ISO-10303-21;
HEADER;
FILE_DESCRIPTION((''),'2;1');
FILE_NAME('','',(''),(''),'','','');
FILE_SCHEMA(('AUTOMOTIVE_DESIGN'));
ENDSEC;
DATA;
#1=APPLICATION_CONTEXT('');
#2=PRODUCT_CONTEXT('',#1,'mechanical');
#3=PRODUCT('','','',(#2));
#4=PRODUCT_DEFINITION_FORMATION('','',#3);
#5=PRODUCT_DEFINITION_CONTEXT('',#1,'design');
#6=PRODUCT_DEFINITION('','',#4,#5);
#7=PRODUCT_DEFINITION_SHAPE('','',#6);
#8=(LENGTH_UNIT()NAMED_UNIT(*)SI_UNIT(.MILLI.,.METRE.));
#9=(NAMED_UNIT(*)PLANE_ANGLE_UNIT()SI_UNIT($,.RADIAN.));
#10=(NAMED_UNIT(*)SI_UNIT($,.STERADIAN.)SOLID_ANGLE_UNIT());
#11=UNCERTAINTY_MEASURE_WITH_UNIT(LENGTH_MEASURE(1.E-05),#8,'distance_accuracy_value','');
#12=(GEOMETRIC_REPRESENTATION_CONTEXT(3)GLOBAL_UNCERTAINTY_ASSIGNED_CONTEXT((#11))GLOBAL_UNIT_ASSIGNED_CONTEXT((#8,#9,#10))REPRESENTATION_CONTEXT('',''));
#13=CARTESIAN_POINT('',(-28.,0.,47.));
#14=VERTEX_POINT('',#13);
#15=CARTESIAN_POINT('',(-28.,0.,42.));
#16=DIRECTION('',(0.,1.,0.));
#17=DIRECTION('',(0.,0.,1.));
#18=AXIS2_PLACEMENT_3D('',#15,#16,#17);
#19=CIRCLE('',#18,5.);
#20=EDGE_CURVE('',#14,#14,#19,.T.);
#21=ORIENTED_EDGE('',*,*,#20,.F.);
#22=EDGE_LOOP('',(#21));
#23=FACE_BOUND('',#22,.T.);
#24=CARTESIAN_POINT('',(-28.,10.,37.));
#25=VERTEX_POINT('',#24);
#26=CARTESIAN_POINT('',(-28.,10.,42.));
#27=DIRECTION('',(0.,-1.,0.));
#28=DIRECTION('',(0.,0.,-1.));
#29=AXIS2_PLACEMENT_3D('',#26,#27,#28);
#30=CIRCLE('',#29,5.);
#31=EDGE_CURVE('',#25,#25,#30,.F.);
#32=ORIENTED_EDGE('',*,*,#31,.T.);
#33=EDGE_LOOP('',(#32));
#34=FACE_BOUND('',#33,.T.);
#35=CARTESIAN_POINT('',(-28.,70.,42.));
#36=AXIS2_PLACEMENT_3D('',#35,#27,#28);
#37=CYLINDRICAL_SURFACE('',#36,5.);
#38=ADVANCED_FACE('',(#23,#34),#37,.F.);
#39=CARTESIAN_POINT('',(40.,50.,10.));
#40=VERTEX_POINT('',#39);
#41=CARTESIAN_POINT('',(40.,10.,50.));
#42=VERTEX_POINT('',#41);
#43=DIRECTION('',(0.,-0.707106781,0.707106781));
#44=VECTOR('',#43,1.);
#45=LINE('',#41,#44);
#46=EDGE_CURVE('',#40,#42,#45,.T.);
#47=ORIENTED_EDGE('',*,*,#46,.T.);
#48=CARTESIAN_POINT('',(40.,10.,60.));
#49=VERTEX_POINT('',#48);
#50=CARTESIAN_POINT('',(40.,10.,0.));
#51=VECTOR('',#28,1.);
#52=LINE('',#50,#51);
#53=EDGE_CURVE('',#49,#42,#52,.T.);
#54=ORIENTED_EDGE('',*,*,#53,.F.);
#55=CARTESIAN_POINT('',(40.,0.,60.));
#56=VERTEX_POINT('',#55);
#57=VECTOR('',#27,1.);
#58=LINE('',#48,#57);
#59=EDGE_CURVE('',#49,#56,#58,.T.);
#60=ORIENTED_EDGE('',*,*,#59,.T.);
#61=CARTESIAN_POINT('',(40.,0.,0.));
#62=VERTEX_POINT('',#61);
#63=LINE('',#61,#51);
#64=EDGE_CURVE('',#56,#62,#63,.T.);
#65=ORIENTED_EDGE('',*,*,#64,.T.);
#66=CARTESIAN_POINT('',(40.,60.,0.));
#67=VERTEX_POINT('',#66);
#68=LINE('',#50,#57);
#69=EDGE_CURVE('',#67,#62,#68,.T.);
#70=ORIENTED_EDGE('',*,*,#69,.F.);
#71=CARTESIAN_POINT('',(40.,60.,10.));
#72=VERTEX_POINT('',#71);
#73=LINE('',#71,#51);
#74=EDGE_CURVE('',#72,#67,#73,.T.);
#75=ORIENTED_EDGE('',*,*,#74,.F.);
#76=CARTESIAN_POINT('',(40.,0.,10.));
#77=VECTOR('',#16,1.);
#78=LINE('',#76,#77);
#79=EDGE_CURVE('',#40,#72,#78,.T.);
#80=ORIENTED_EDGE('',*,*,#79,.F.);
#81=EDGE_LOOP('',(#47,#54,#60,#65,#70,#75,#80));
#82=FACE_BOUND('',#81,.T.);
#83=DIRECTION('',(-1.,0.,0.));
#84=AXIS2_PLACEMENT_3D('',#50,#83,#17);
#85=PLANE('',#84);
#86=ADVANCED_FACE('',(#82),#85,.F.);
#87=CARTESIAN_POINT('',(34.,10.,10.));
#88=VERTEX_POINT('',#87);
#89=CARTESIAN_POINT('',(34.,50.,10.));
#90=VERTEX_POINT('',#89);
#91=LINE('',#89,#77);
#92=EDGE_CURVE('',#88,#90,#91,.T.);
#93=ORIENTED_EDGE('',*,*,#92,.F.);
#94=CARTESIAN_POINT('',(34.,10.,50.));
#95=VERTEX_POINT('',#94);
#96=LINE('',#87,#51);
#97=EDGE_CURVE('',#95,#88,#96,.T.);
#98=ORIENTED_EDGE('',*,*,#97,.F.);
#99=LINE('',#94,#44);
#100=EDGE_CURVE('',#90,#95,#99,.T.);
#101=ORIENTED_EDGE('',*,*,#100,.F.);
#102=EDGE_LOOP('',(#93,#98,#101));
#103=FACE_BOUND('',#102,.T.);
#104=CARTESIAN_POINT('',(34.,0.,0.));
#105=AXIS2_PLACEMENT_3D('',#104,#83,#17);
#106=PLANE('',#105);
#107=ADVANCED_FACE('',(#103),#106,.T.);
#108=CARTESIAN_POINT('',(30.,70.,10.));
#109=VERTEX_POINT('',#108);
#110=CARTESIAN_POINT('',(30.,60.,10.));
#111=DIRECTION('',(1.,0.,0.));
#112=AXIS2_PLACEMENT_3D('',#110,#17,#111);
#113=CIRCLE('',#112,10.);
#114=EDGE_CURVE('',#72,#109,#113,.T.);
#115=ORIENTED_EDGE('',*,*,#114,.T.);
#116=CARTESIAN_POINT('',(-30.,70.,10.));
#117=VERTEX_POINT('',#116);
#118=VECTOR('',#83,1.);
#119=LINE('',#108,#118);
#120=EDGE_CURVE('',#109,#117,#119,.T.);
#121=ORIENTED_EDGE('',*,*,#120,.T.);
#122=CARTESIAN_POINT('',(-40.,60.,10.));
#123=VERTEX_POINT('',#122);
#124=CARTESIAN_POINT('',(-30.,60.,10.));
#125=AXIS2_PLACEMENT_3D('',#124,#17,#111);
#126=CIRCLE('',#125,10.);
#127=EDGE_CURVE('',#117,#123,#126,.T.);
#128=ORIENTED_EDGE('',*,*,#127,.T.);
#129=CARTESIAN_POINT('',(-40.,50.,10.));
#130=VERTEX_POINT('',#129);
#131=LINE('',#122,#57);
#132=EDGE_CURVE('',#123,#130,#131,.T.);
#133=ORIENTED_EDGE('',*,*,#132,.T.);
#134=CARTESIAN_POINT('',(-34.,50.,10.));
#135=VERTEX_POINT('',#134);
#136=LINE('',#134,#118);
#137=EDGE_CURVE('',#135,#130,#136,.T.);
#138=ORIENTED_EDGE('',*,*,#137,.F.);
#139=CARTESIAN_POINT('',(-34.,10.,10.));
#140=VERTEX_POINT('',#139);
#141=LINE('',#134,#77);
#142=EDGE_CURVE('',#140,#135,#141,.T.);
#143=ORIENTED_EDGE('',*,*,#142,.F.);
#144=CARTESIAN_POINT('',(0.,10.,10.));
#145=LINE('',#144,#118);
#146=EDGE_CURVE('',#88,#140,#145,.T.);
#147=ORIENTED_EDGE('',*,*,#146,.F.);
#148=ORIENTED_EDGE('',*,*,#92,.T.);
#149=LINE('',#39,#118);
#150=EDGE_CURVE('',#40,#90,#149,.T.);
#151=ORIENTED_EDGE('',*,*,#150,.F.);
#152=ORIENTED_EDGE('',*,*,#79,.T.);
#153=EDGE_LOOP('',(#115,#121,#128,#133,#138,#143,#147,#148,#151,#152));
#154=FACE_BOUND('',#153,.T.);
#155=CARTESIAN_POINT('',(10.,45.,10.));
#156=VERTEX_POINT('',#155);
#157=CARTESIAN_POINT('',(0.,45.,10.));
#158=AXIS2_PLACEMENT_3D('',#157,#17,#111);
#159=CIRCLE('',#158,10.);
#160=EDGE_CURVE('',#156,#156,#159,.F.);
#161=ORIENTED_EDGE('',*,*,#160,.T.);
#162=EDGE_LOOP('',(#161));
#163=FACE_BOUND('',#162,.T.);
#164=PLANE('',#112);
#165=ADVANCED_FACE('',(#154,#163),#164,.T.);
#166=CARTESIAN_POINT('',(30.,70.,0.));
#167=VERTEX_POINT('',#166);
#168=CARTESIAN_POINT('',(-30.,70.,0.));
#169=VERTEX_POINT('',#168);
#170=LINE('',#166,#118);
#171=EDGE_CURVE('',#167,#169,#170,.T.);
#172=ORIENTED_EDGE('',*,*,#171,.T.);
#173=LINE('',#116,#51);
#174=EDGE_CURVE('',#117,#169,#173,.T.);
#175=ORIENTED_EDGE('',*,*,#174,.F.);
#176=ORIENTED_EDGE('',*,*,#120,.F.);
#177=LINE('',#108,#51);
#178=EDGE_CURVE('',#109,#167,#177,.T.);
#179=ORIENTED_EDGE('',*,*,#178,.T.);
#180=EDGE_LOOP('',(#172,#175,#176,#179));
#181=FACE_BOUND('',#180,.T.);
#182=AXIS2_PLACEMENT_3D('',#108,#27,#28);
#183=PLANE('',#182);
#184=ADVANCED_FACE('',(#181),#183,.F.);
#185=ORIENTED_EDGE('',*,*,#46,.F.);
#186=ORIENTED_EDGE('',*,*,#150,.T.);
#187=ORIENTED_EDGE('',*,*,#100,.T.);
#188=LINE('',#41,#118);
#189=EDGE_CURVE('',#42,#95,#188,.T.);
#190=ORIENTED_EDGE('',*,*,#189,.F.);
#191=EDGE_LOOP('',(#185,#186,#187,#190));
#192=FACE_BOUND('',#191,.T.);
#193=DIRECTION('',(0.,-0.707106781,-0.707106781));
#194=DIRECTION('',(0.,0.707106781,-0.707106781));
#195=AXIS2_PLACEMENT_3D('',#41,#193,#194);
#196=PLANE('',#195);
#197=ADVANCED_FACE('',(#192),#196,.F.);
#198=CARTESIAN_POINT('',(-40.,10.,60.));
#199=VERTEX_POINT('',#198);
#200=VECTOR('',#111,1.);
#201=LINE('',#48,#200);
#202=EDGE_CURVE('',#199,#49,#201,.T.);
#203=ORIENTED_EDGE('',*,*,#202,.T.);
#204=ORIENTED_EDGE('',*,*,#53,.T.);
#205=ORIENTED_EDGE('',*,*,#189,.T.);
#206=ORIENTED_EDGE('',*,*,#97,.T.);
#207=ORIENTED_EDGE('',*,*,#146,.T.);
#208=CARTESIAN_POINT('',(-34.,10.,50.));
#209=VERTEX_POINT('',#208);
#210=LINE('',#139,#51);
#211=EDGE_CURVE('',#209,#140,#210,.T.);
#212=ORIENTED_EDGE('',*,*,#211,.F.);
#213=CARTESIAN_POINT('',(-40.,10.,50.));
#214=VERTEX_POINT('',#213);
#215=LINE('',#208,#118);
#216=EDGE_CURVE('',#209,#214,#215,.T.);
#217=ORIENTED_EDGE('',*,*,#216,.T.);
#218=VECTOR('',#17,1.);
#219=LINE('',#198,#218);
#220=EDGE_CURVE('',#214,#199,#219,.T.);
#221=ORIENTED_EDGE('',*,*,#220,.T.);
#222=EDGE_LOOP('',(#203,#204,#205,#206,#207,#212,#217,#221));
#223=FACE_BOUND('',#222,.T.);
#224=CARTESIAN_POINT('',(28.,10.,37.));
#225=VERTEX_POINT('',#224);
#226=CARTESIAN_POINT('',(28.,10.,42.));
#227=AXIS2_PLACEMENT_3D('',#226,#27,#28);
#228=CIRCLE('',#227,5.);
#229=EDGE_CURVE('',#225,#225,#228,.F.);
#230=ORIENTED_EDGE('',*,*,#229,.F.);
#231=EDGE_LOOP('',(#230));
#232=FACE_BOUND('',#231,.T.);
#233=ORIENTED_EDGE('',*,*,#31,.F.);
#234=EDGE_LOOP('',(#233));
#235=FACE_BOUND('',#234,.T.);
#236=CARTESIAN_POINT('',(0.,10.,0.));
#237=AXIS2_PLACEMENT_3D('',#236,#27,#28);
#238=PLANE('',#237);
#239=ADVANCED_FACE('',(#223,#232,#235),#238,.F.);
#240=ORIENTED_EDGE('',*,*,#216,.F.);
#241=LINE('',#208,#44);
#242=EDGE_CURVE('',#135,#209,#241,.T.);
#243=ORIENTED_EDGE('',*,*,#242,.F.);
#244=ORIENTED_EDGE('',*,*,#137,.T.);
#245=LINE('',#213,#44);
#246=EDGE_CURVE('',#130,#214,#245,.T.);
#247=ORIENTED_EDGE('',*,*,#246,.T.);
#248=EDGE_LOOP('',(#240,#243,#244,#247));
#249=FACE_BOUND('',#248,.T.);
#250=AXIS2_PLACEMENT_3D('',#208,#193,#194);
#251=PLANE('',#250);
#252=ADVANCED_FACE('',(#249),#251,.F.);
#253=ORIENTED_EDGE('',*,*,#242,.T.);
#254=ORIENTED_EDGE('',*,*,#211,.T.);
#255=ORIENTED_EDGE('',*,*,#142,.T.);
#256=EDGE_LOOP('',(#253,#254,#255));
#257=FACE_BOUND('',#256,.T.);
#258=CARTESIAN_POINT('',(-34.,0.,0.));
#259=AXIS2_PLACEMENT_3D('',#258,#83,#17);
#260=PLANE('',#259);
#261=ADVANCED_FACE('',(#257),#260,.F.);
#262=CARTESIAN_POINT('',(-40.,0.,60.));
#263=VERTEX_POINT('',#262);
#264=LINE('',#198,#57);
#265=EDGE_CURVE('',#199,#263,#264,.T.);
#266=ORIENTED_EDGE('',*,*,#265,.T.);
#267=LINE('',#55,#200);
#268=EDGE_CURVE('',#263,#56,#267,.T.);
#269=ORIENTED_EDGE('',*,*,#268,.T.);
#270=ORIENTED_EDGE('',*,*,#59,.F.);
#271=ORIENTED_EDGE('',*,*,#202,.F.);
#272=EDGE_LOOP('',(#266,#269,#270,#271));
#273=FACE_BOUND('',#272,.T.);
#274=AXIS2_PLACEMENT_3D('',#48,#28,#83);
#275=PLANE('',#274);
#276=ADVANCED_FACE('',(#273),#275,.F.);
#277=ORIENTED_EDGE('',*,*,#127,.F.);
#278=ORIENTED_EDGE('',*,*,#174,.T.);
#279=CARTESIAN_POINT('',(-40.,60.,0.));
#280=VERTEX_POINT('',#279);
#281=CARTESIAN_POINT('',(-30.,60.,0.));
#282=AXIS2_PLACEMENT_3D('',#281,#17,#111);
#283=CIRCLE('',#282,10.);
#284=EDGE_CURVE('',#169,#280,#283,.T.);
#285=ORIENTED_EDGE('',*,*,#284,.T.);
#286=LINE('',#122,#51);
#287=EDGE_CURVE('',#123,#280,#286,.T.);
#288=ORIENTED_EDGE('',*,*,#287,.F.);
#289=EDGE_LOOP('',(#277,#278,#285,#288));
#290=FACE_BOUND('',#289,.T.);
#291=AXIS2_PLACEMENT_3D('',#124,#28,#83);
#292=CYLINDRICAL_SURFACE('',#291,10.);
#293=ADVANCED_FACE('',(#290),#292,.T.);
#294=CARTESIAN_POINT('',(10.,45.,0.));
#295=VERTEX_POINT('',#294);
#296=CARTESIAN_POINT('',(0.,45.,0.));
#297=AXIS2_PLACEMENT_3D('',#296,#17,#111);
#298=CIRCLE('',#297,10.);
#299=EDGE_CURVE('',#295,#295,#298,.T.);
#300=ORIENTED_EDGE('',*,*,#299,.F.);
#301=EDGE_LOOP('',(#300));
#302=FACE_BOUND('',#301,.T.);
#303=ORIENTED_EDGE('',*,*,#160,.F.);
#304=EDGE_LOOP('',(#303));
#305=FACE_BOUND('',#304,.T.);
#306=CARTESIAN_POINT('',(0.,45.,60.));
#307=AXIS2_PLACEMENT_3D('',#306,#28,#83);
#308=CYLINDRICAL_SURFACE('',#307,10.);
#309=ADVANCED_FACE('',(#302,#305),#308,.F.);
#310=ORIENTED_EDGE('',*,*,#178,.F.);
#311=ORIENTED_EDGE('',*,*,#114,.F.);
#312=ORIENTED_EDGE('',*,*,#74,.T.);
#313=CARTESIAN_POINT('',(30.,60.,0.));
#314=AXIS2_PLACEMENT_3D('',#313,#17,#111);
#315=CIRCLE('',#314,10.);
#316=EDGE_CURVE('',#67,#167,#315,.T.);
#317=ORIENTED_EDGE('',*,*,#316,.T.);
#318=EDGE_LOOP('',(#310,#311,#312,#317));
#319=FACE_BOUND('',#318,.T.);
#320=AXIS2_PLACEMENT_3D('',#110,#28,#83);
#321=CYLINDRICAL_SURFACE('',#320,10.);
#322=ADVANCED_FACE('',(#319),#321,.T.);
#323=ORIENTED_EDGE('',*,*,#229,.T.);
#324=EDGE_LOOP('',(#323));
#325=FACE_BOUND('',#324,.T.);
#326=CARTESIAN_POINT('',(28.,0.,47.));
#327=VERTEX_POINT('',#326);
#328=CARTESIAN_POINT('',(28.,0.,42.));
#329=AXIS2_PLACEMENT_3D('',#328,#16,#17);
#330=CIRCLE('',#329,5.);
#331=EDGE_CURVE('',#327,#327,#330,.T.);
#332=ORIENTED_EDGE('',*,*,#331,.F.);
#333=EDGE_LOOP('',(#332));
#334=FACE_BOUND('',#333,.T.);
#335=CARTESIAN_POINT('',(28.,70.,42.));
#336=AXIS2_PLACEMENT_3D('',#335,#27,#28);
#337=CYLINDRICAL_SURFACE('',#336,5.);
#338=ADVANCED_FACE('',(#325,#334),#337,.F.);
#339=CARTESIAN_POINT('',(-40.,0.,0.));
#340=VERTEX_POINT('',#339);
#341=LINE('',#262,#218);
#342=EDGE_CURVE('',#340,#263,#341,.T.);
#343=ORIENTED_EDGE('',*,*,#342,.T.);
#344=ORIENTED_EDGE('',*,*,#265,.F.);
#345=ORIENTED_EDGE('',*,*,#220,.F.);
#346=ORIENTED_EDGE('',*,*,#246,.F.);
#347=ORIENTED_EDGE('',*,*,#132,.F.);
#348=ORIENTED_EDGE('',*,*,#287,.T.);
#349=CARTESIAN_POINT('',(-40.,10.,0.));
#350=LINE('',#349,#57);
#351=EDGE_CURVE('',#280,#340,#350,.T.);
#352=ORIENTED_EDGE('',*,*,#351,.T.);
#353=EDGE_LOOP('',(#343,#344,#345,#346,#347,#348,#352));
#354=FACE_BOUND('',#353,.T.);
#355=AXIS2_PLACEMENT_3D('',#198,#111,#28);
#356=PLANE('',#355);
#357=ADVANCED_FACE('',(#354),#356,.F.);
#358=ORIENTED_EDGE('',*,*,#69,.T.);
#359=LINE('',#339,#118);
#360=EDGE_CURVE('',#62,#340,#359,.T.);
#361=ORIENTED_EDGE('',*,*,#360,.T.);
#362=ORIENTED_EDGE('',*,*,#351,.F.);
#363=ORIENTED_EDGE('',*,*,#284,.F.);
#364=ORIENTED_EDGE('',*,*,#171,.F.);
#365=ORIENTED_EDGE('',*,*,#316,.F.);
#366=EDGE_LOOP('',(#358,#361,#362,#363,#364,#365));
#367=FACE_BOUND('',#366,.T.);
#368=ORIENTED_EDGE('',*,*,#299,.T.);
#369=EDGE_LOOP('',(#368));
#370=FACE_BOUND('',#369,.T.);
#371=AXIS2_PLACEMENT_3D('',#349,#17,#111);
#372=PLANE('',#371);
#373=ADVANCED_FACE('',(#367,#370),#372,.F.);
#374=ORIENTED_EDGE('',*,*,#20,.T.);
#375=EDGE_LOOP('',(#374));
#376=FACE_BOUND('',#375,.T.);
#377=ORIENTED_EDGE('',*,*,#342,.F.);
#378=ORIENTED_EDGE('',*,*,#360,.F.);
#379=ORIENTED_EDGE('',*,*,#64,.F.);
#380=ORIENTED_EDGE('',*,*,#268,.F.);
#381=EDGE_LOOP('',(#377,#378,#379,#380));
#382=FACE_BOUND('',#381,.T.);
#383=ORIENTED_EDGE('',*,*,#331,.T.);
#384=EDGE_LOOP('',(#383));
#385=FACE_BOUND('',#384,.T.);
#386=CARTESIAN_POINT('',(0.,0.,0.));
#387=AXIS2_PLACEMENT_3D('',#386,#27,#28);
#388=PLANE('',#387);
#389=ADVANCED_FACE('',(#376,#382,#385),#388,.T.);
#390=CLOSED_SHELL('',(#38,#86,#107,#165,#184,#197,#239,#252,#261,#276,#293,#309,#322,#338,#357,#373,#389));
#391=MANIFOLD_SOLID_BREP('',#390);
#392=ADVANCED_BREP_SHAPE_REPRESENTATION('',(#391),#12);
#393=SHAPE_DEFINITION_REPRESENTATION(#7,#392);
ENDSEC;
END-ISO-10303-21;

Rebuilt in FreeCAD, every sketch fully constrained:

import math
import FreeCAD as App
import Part
import Sketcher

V = App.Vector


def add_polygon(sketch, points):
    """Adds a closed chain of lines whose ends are joined by coincident constraints."""
    first, n = sketch.GeometryCount, len(points)
    for a, b in zip(points, points[1:] + points[:1]):
        sketch.addGeometry(Part.LineSegment(App.Vector(*a, 0), App.Vector(*b, 0)), False)
    for i in range(n):
        sketch.addConstraint(Sketcher.Constraint("Coincident", first + i, 2, first + (i + 1) % n, 1))

doc = App.newDocument("Part")
body = doc.addObject("PartDesign::Body", "Body")

# Sketch on XZ plane
sketch1 = body.newObject("Sketcher::SketchObject", "Sketch")
sketch1.AttachmentSupport = (doc.getObject("XZ_Plane"), [""])
sketch1.MapMode = "FlatFace"
add_polygon(sketch1, [(-40, 0), (-40, 60), (40, 60), (40, 0)])  # lines 0-3
sketch1.addConstraint(Sketcher.Constraint("Vertical", 0))
sketch1.addConstraint(Sketcher.Constraint("Horizontal", 1))
sketch1.addConstraint(Sketcher.Constraint("Vertical", 2))
sketch1.addConstraint(Sketcher.Constraint("Horizontal", 3))
sketch1.addConstraint(Sketcher.Constraint("Symmetric", 2, 2, 3, 2, -1, 1))
sketch1.addConstraint(Sketcher.Constraint("DistanceX", 1, 1, 1, 2, 80.0))
sketch1.addConstraint(Sketcher.Constraint("DistanceY", 0, 1, 0, 2, 60.0))
pad1 = body.newObject("PartDesign::Pad", "Pad")
pad1.Profile = sketch1
pad1.Length = 10
pad1.Reversed = True

# Sketch on XY plane
sketch2 = body.newObject("Sketcher::SketchObject", "Sketch001")
sketch2.AttachmentSupport = (doc.getObject("XY_Plane"), [""])
sketch2.MapMode = "FlatFace"
sketch2.addGeometry(Part.LineSegment(V(-40, 0, 0), V(40, 0, 0)), False)
sketch2.addGeometry(Part.LineSegment(V(40, 0, 0), V(40, 60, 0)), False)
sketch2.addGeometry(Part.ArcOfCircle(Part.Circle(V(30, 60, 0), V(0, 0, 1), 10), math.radians(0), math.radians(90)), False)
sketch2.addGeometry(Part.LineSegment(V(30, 70, 0), V(-30, 70, 0)), False)
sketch2.addGeometry(Part.ArcOfCircle(Part.Circle(V(-30, 60, 0), V(0, 0, 1), 10), math.radians(90), math.radians(180)), False)
sketch2.addGeometry(Part.LineSegment(V(-40, 60, 0), V(-40, 0, 0)), False)
sketch2.addConstraint(Sketcher.Constraint("Coincident", 0, 2, 1, 1))
sketch2.addConstraint(Sketcher.Constraint("Tangent", 1, 2, 2, 1))
sketch2.addConstraint(Sketcher.Constraint("Tangent", 2, 2, 3, 1))
sketch2.addConstraint(Sketcher.Constraint("Tangent", 3, 2, 4, 1))
sketch2.addConstraint(Sketcher.Constraint("Tangent", 4, 2, 5, 1))
sketch2.addConstraint(Sketcher.Constraint("Coincident", 5, 2, 0, 1))
sketch2.addConstraint(Sketcher.Constraint("Horizontal", 0))
sketch2.addConstraint(Sketcher.Constraint("Vertical", 1))
sketch2.addConstraint(Sketcher.Constraint("Horizontal", 3))
sketch2.addConstraint(Sketcher.Constraint("Vertical", 5))
sketch2.addConstraint(Sketcher.Constraint("Equal", 2, 4))
sketch2.addConstraint(Sketcher.Constraint("Symmetric", 0, 2, 5, 2, -1, 1))
sketch2.addConstraint(Sketcher.Constraint("Equal", 3, 1))
sketch2.addConstraint(Sketcher.Constraint("Radius", 2, 10.0))
sketch2.addConstraint(Sketcher.Constraint("DistanceX", 0, 1, 0, 2, 80.0))
pad2 = body.newObject("PartDesign::Pad", "Pad001")
pad2.Profile = sketch2
pad2.Length = 10

# Sketch on YZ plane
sketch3 = body.newObject("Sketcher::SketchObject", "Sketch002")
sketch3.AttachmentSupport = (doc.getObject("YZ_Plane"), [""])
sketch3.MapMode = "FlatFace"
sketch3.AttachmentOffset = App.Placement(V(0, 0, -40), App.Rotation())
add_polygon(sketch3, [(10, 50), (10, 10), (50, 10)])  # lines 0-2
sketch3.addConstraint(Sketcher.Constraint("Vertical", 0))
sketch3.addConstraint(Sketcher.Constraint("Horizontal", 1))
sketch3.addConstraint(Sketcher.Constraint("Equal", 1, 0))
sketch3.addConstraint(Sketcher.Constraint("DistanceX", 1, 1, 1, 2, 40.0))
sketch3.addConstraint(Sketcher.Constraint("DistanceX", -1, 1, 0, 2, 10.0))
sketch3.addConstraint(Sketcher.Constraint("DistanceY", -1, 1, 0, 2, 10.0))
pad3 = body.newObject("PartDesign::Pad", "Pad002")
pad3.Profile = sketch3
pad3.Length = 6

# Sketch on YZ plane
sketch4 = body.newObject("Sketcher::SketchObject", "Sketch003")
sketch4.AttachmentSupport = (doc.getObject("YZ_Plane"), [""])
sketch4.MapMode = "FlatFace"
sketch4.AttachmentOffset = App.Placement(V(0, 0, 34), App.Rotation())
add_polygon(sketch4, [(10, 50), (10, 10), (50, 10)])  # lines 0-2
sketch4.addConstraint(Sketcher.Constraint("Vertical", 0))
sketch4.addConstraint(Sketcher.Constraint("Horizontal", 1))
sketch4.addConstraint(Sketcher.Constraint("Equal", 1, 0))
sketch4.addConstraint(Sketcher.Constraint("DistanceX", 1, 1, 1, 2, 40.0))
sketch4.addConstraint(Sketcher.Constraint("DistanceX", -1, 1, 0, 2, 10.0))
sketch4.addConstraint(Sketcher.Constraint("DistanceY", -1, 1, 0, 2, 10.0))
pad4 = body.newObject("PartDesign::Pad", "Pad003")
pad4.Profile = sketch4
pad4.Length = 6

# Sketch on XY plane
sketch5 = body.newObject("Sketcher::SketchObject", "Sketch004")
sketch5.AttachmentSupport = (doc.getObject("XY_Plane"), [""])
sketch5.MapMode = "FlatFace"
sketch5.addGeometry(Part.Circle(V(0, 45, 0), V(0, 0, 1), 10), False)
sketch5.addConstraint(Sketcher.Constraint("PointOnObject", 0, 3, -2))
sketch5.addConstraint(Sketcher.Constraint("Diameter", 0, 20.0))
sketch5.addConstraint(Sketcher.Constraint("DistanceY", -1, 1, 0, 3, 45.0))
pocket1 = body.newObject("PartDesign::Pocket", "Pocket")
pocket1.Profile = sketch5
pocket1.Type = "ThroughAll"
pocket1.Reversed = True

# Sketch on XZ plane
sketch6 = body.newObject("Sketcher::SketchObject", "Sketch005")
sketch6.AttachmentSupport = (doc.getObject("XZ_Plane"), [""])
sketch6.MapMode = "FlatFace"
sketch6.addGeometry(Part.Circle(V(-28, 42, 0), V(0, 0, 1), 5), False)
sketch6.addGeometry(Part.Circle(V(28, 42, 0), V(0, 0, 1), 5), False)
sketch6.addConstraint(Sketcher.Constraint("Equal", 0, 1))
sketch6.addConstraint(Sketcher.Constraint("Symmetric", 0, 3, 1, 3, -2))
sketch6.addConstraint(Sketcher.Constraint("Diameter", 0, 10.0))
sketch6.addConstraint(Sketcher.Constraint("DistanceX", 0, 3, -1, 1, 28.0))
sketch6.addConstraint(Sketcher.Constraint("DistanceY", -1, 1, 0, 3, 42.0))
pocket2 = body.newObject("PartDesign::Pocket", "Pocket001")
pocket2.Profile = sketch6
pocket2.Type = "ThroughAll"

doc.recompute()
